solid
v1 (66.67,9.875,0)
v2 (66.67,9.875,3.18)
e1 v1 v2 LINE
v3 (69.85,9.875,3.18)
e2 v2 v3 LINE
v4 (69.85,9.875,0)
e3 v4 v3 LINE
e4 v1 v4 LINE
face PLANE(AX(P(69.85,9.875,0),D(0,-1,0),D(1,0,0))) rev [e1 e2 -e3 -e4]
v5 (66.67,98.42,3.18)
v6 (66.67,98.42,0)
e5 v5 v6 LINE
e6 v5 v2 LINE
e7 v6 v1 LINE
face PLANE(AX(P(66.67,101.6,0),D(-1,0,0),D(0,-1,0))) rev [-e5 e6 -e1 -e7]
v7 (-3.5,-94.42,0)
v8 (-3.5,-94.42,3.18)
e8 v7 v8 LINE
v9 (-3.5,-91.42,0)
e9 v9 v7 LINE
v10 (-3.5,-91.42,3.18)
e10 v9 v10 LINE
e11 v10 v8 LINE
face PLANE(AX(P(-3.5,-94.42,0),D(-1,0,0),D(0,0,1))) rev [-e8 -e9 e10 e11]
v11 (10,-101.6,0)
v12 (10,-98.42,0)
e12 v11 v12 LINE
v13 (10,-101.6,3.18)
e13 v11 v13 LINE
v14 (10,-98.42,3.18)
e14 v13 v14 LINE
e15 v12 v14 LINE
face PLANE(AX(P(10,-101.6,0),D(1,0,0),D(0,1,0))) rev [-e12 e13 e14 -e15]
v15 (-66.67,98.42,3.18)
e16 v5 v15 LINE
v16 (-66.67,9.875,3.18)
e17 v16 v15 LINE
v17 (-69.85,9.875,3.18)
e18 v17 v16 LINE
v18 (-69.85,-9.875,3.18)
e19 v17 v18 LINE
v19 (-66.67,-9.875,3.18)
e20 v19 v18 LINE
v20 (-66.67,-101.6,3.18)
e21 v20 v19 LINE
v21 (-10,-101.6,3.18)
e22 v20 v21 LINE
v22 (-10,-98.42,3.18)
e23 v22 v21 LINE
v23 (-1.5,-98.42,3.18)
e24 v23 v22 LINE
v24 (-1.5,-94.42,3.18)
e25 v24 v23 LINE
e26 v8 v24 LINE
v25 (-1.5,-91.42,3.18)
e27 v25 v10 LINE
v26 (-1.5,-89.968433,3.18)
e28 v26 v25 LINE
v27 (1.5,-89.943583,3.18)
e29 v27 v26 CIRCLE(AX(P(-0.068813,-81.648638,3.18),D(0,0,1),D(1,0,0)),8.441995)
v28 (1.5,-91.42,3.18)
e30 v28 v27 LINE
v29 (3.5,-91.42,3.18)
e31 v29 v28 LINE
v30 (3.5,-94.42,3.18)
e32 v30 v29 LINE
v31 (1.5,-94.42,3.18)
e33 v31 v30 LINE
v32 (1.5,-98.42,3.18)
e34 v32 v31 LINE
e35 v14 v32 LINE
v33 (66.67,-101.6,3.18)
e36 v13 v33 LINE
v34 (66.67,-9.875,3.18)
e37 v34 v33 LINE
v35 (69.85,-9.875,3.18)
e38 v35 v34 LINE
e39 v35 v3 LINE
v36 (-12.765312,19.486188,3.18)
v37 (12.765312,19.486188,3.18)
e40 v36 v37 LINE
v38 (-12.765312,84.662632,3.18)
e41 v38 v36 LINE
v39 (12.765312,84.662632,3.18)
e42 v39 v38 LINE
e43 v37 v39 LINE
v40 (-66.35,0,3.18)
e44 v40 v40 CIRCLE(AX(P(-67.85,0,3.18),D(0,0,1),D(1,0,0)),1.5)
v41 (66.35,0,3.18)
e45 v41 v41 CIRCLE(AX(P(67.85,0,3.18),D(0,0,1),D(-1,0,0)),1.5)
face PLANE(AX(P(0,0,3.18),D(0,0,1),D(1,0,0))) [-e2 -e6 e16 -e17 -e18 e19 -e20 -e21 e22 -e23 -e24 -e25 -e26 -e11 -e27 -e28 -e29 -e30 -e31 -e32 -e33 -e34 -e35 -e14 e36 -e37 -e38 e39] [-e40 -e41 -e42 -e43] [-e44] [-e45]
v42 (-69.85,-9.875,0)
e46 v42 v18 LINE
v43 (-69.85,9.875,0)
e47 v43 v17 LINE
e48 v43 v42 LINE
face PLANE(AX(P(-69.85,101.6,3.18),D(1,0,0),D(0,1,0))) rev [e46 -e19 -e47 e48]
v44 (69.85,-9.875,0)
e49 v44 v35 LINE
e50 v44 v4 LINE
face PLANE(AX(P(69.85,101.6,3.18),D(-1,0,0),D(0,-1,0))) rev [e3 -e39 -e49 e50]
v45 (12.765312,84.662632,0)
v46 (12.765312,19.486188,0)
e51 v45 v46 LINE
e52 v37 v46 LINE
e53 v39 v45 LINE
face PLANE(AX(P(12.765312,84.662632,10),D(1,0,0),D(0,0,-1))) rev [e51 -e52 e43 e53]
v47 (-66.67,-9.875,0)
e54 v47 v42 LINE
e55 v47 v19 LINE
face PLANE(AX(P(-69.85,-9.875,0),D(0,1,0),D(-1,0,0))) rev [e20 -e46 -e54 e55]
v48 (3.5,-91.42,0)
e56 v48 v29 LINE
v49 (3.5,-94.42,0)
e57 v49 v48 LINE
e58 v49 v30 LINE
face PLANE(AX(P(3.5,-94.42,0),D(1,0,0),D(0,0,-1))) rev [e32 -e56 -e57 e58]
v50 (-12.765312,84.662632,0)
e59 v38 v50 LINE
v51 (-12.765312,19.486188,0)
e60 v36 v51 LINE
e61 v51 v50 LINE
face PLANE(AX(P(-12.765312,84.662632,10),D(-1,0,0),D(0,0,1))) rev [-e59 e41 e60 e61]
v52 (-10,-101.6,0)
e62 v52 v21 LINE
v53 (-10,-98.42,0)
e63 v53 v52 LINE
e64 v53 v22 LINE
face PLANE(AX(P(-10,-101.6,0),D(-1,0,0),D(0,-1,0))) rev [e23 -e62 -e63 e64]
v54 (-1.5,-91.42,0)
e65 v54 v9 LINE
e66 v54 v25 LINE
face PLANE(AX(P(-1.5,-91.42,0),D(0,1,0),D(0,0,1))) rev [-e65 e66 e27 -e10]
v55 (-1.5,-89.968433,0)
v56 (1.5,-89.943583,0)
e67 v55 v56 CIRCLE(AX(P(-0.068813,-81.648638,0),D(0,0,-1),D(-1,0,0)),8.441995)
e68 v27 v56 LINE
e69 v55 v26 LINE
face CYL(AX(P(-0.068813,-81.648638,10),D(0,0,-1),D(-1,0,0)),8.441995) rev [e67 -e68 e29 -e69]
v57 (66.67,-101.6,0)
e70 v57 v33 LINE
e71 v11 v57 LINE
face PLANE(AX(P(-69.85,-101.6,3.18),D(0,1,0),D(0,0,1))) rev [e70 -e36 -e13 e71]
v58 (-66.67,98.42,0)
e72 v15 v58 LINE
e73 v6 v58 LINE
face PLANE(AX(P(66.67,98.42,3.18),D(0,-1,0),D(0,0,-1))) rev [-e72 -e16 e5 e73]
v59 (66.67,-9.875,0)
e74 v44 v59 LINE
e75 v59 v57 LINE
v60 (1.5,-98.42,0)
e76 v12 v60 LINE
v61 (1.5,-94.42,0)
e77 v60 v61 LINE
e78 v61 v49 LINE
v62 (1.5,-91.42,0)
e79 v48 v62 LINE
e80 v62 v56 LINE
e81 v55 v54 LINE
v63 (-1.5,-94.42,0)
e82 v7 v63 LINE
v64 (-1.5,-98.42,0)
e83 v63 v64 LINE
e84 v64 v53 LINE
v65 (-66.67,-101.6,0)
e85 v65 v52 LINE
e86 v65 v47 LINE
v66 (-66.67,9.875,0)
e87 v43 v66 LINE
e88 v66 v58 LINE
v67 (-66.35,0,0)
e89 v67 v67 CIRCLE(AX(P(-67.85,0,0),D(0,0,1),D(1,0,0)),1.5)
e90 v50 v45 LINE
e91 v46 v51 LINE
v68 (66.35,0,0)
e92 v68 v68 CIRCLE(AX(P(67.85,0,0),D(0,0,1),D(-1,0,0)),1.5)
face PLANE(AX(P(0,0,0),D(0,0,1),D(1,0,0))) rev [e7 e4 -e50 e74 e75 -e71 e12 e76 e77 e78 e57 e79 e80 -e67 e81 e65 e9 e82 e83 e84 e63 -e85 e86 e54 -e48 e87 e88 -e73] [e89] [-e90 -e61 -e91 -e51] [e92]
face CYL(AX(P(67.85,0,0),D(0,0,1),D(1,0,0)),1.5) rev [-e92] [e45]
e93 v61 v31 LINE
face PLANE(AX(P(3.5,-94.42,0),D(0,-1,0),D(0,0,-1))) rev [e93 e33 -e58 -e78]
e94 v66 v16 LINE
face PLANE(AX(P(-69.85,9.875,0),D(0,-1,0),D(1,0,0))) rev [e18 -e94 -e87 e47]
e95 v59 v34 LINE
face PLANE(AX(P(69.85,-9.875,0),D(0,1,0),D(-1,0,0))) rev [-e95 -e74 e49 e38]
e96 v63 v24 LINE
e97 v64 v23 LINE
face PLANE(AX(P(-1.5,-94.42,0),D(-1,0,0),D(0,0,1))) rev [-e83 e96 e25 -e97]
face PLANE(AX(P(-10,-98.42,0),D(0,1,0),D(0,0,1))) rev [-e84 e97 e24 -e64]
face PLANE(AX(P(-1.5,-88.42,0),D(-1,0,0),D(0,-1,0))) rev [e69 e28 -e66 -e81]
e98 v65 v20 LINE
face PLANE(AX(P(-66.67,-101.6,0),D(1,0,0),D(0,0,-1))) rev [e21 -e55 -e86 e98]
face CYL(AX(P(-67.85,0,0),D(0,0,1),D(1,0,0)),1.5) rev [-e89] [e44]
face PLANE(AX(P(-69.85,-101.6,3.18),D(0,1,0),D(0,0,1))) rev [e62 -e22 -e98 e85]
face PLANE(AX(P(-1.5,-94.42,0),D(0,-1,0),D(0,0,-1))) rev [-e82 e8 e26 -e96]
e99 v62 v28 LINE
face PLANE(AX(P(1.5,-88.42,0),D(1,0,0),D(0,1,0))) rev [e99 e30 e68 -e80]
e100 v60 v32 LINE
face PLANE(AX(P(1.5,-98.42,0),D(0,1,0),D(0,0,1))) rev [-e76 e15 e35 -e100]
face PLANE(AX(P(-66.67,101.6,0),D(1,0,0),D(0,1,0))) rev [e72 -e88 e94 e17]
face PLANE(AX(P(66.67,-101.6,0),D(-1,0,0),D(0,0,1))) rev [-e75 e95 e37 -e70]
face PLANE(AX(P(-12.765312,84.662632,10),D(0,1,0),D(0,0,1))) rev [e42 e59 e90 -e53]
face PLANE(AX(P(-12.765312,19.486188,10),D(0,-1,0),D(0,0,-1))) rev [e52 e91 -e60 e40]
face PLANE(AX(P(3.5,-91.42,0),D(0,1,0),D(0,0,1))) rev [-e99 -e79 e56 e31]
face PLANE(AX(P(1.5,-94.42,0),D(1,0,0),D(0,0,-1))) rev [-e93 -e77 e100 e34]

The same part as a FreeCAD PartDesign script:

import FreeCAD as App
import Part
import Sketcher
from FreeCAD import Vector


def add_polygon(sketch, points):
    """Adds a closed chain of lines whose ends are joined by coincident constraints."""
    first, n = sketch.GeometryCount, len(points)
    for a, b in zip(points, points[1:] + points[:1]):
        sketch.addGeometry(Part.LineSegment(App.Vector(*a, 0), App.Vector(*b, 0)), False)
    for i in range(n):
        sketch.addConstraint(Sketcher.Constraint("Coincident", first + i, 2, first + (i + 1) % n, 1))

doc = App.newDocument("Part")
body = doc.addObject("PartDesign::Body", "Body")

# Sketch on XY plane
sketch1 = body.newObject("Sketcher::SketchObject", "Sketch")
sketch1.AttachmentSupport = (doc.getObject("XY_Plane"), [""])
sketch1.MapMode = "FlatFace"
add_polygon(sketch1, [(-70, 102), (-70, -102), (70, -102), (70, 102)])  # lines 0-3
sketch1.addConstraint(Sketcher.Constraint("Vertical", 0))
sketch1.addConstraint(Sketcher.Constraint("Horizontal", 1))
sketch1.addConstraint(Sketcher.Constraint("Vertical", 2))
sketch1.addConstraint(Sketcher.Constraint("Horizontal", 3))
sketch1.addConstraint(Sketcher.Constraint("Symmetric", 0, 2, 2, 2, -1, 1))
sketch1.addConstraint(Sketcher.Constraint("DistanceX", 1, 1, 1, 2, 139.7))
sketch1.addConstraint(Sketcher.Constraint("DistanceY", 0, 2, 0, 1, 203.2))
pad1 = body.newObject("PartDesign::Pad", "Pad")
pad1.Profile = sketch1
pad1.Length = 3.18

# Sketch on XY plane
sketch2 = body.newObject("Sketcher::SketchObject", "Sketch001")
sketch2.AttachmentSupport = (doc.getObject("XY_Plane"), [""])
sketch2.MapMode = "FlatFace"
sketch2.AttachmentOffset = App.Placement(Vector(0, 0, 3.18), App.Rotation())
sketch2.addGeometry(Part.Circle(Vector(-67.8, 0, 0), Vector(0, 0, 1), 1.5), False)  # 0
sketch2.addGeometry(Part.Circle(Vector(67.8, 0, 0), Vector(0, 0, 1), 1.5), False)  # 1
add_polygon(sketch2, [(10, 101.6), (-10, 101.6), (-10, 98.4), (-1.5, 98.4), (-1.5, 94.4), (-3.5, 94.4), (-3.5, 91.4), (-1.5, 91.4), (-1.5, 88.4), (1.5, 88.4), (1.5, 91.4), (3.5, 91.4), (3.5, 94.4), (1.5, 94.4), (1.5, 98.4), (10, 98.4)])  # lines 2-17
add_polygon(sketch2, [(-10, -98.4), (-10, -101.6), (10, -101.6), (10, -98.4), (1.5, -98.4), (1.5, -94.4), (3.5, -94.4), (3.5, -91.4), (1.5, -91.4), (1.5, -88.4), (-1.5, -88.4), (-1.5, -91.4), (-3.5, -91.4), (-3.5, -94.4), (-1.5, -94.4), (-1.5, -98.4)])  # lines 18-33
add_polygon(sketch2, [(-69.8, 101.6), (-69.8, 9.9), (-66.7, 9.9), (-66.7, 101.6)])  # lines 34-37
add_polygon(sketch2, [(-69.8, -9.9), (-69.8, -101.6), (-66.7, -101.6), (-66.7, -9.9)])  # lines 38-41
add_polygon(sketch2, [(66.7, -9.9), (66.7, -101.6), (69.8, -101.6), (69.8, -9.9)])  # lines 42-45
add_polygon(sketch2, [(66.7, 101.6), (66.7, 9.9), (69.8, 9.9), (69.8, 101.6)])  # lines 46-49
sketch2.addConstraint(Sketcher.Constraint("Horizontal", 2))
sketch2.addConstraint(Sketcher.Constraint("Vertical", 3))
sketch2.addConstraint(Sketcher.Constraint("Horizontal", 4))
sketch2.addConstraint(Sketcher.Constraint("Vertical", 5))
sketch2.addConstraint(Sketcher.Constraint("Horizontal", 6))
sketch2.addConstraint(Sketcher.Constraint("Vertical", 7))
sketch2.addConstraint(Sketcher.Constraint("Horizontal", 8))
sketch2.addConstraint(Sketcher.Constraint("Vertical", 9))
sketch2.addConstraint(Sketcher.Constraint("Horizontal", 10))
sketch2.addConstraint(Sketcher.Constraint("Vertical", 11))
sketch2.addConstraint(Sketcher.Constraint("Horizontal", 12))
sketch2.addConstraint(Sketcher.Constraint("Vertical", 13))
sketch2.addConstraint(Sketcher.Constraint("Horizontal", 14))
sketch2.addConstraint(Sketcher.Constraint("Vertical", 15))
sketch2.addConstraint(Sketcher.Constraint("Horizontal", 16))
sketch2.addConstraint(Sketcher.Constraint("Vertical", 17))
sketch2.addConstraint(Sketcher.Constraint("Vertical", 18))
sketch2.addConstraint(Sketcher.Constraint("Horizontal", 19))
sketch2.addConstraint(Sketcher.Constraint("Vertical", 20))
sketch2.addConstraint(Sketcher.Constraint("Horizontal", 21))
sketch2.addConstraint(Sketcher.Constraint("Vertical", 22))
sketch2.addConstraint(Sketcher.Constraint("Horizontal", 23))
sketch2.addConstraint(Sketcher.Constraint("Vertical", 24))
sketch2.addConstraint(Sketcher.Constraint("Horizontal", 25))
sketch2.addConstraint(Sketcher.Constraint("Vertical", 26))
sketch2.addConstraint(Sketcher.Constraint("Horizontal", 27))
sketch2.addConstraint(Sketcher.Constraint("Vertical", 28))
sketch2.addConstraint(Sketcher.Constraint("Horizontal", 29))
sketch2.addConstraint(Sketcher.Constraint("Vertical", 30))
sketch2.addConstraint(Sketcher.Constraint("Horizontal", 31))
sketch2.addConstraint(Sketcher.Constraint("Vertical", 32))
sketch2.addConstraint(Sketcher.Constraint("Horizontal", 33))
sketch2.addConstraint(Sketcher.Constraint("Vertical", 34))
sketch2.addConstraint(Sketcher.Constraint("Horizontal", 35))
sketch2.addConstraint(Sketcher.Constraint("Vertical", 36))
sketch2.addConstraint(Sketcher.Constraint("Horizontal", 37))
sketch2.addConstraint(Sketcher.Constraint("Vertical", 38))
sketch2.addConstraint(Sketcher.Constraint("Horizontal", 39))
sketch2.addConstraint(Sketcher.Constraint("Vertical", 40))
sketch2.addConstraint(Sketcher.Constraint("Horizontal", 41))
sketch2.addConstraint(Sketcher.Constraint("Vertical", 42))
sketch2.addConstraint(Sketcher.Constraint("Horizontal", 43))
sketch2.addConstraint(Sketcher.Constraint("Vertical", 44))
sketch2.addConstraint(Sketcher.Constraint("Horizontal", 45))
sketch2.addConstraint(Sketcher.Constraint("Vertical", 46))
sketch2.addConstraint(Sketcher.Constraint("Horizontal", 47))
sketch2.addConstraint(Sketcher.Constraint("Vertical", 48))
sketch2.addConstraint(Sketcher.Constraint("Horizontal", 49))
sketch2.addConstraint(Sketcher.Constraint("Equal", 0, 1))
sketch2.addConstraint(Sketcher.Constraint("Symmetric", 0, 3, 1, 3, -1, 1))
sketch2.addConstraint(Sketcher.Constraint("Symmetric", 17, 2, 18, 2, -1, 1))
sketch2.addConstraint(Sketcher.Constraint("Symmetric", 3, 2, 20, 2, -1, 1))
sketch2.addConstraint(Sketcher.Constraint("Symmetric", 5, 2, 22, 2, -1, 1))
sketch2.addConstraint(Sketcher.Constraint("Symmetric", 7, 2, 24, 2, -1, 1))
sketch2.addConstraint(Sketcher.Constraint("Symmetric", 9, 2, 26, 2, -1, 1))
sketch2.addConstraint(Sketcher.Constraint("Symmetric", 11, 2, 28, 2, -1, 1))
sketch2.addConstraint(Sketcher.Constraint("Symmetric", 13, 2, 30, 2, -1, 1))
sketch2.addConstraint(Sketcher.Constraint("Symmetric", 15, 2, 32, 2, -1, 1))
sketch2.addConstraint(Sketcher.Constraint("Symmetric", 36, 2, 42, 2, -1, 1))
sketch2.addConstraint(Sketcher.Constraint("Symmetric", 34, 2, 44, 2, -1, 1))
sketch2.addConstraint(Sketcher.Constraint("Symmetric", 40, 2, 46, 2, -1, 1))
sketch2.addConstraint(Sketcher.Constraint("Symmetric", 38, 2, 48, 2, -1, 1))
sketch2.addConstraint(Sketcher.Constraint("Symmetric", 8, 2, 11, 2, -2))
sketch2.addConstraint(Sketcher.Constraint("Symmetric", 6, 2, 13, 2, -2))
sketch2.addConstraint(Sketcher.Constraint("Symmetric", 4, 2, 15, 2, -2))
sketch2.addConstraint(Sketcher.Constraint("Symmetric", 39, 2, 42, 2, -2))
sketch2.addConstraint(Sketcher.Constraint("Symmetric", 41, 2, 44, 2, -2))
sketch2.addConstraint(Sketcher.Constraint("PointOnObject", 0, 3, -1))
sketch2.addConstraint(Sketcher.Constraint("Horizontal", 17, 2, 36, 2))
sketch2.addConstraint(Sketcher.Constraint("Vertical", 5, 2, 8, 2))
sketch2.addConstraint(Sketcher.Constraint("Vertical", 3, 2, 18, 2))
sketch2.addConstraint(Sketcher.Constraint("Equal", 49, 3))
sketch2.addConstraint(Sketcher.Constraint("Equal", 27, 7))
sketch2.addConstraint(Sketcher.Constraint("Equal", 7, 9))
sketch2.addConstraint(Sketcher.Constraint("Diameter", 0, 3.0))
sketch2.addConstraint(Sketcher.Constraint("DistanceX", 2, 2, 2, 1, 20.0))
sketch2.addConstraint(Sketcher.Constraint("DistanceX", 6, 2, 6, 1, 2.0))
sketch2.addConstraint(Sketcher.Constraint("DistanceX", 10, 1, 10, 2, 3.0))
sketch2.addConstraint(Sketcher.Constraint("DistanceY", 5, 2, 5, 1, 4.0))
sketch2.addConstraint(Sketcher.Constraint("DistanceX", 34, 2, 0, 3, 2.0))
sketch2.addConstraint(Sketcher.Constraint("DistanceX", 35, 1, 35, 2, 3.18))
sketch2.addConstraint(Sketcher.Constraint("DistanceY", -1, 1, 2, 2, 101.6))
sketch2.addConstraint(Sketcher.Constraint("DistanceX", 0, 3, 1, 3, 135.7))
sketch2.addConstraint(Sketcher.Constraint("DistanceY", 34, 2, 34, 1, 91.725))
pocket1 = body.newObject("PartDesign::Pocket", "Pocket")
pocket1.Profile = sketch2
pocket1.Type = "ThroughAll"

# Sketch on XY plane
sketch3 = body.newObject("Sketcher::SketchObject", "Sketch002")
sketch3.AttachmentSupport = (doc.getObject("XY_Plane"), [""])
sketch3.MapMode = "FlatFace"
sketch3.addGeometry(Part.Circle(Vector(0, -82, 0), Vector(0, 0, 1), 8), False)
sketch3.addConstraint(Sketcher.Constraint("Diameter", 0, 16.883989))
sketch3.addConstraint(Sketcher.Constraint("DistanceY", 0, 3, -1, 1, 81.648638))
sketch3.addConstraint(Sketcher.Constraint("DistanceX", 0, 3, -1, 1, 0.068813))
pocket2 = body.newObject("PartDesign::Pocket", "Pocket001")
pocket2.Profile = sketch3
pocket2.Length = 10
pocket2.Reversed = True

# Sketch on XY plane
sketch4 = body.newObject("Sketcher::SketchObject", "Sketch003")
sketch4.AttachmentSupport = (doc.getObject("XY_Plane"), [""])
sketch4.MapMode = "FlatFace"
add_polygon(sketch4, [(13, 85), (13, 19), (-13, 19), (-13, 85)])  # lines 0-3
sketch4.addConstraint(Sketcher.Constraint("Vertical", 0))
sketch4.addConstraint(Sketcher.Constraint("Horizontal", 1))
sketch4.addConstraint(Sketcher.Constraint("Vertical", 2))
sketch4.addConstraint(Sketcher.Constraint("Horizontal", 3))
sketch4.addConstraint(Sketcher.Constraint("DistanceX", 1, 2, 1, 1, 25.530624))
sketch4.addConstraint(Sketcher.Constraint("DistanceY", 0, 2, 0, 1, 65.176444))
sketch4.addConstraint(Sketcher.Constraint("DistanceX", -1, 1, 0, 2, 12.765312))
sketch4.addConstraint(Sketcher.Constraint("DistanceY", -1, 1, 2, 2, 84.662632))
pocket3 = body.newObject("PartDesign::Pocket", "Pocket002")
pocket3.Profile = sketch4
pocket3.Length = 10
pocket3.Reversed = True

# Sketch on XY plane
sketch5 = body.newObject("Sketcher::SketchObject", "Sketch004")
sketch5.AttachmentSupport = (doc.getObject("XY_Plane"), [""])
sketch5.MapMode = "FlatFace"
add_polygon(sketch5, [(10, 102), (10, 87), (-11, 87), (-11, 102)])  # lines 0-3
sketch5.addConstraint(Sketcher.Constraint("Vertical", 0))
sketch5.addConstraint(Sketcher.Constraint("Horizontal", 1))
sketch5.addConstraint(Sketcher.Constraint("Vertical", 2))
sketch5.addConstraint(Sketcher.Constraint("Horizontal", 3))
sketch5.addConstraint(Sketcher.Constraint("DistanceX", -1, 1, 0, 2, 10.0))
sketch5.addConstraint(Sketcher.Constraint("DistanceY", -1, 1, 2, 2, 101.6))
sketch5.addConstraint(Sketcher.Constraint("DistanceY", 0, 2, 0, 1, 14.404592))
sketch5.addConstraint(Sketcher.Constraint("DistanceX", 1, 2, 1, 1, 20.542742))
pad2 = body.newObject("PartDesign::Pad", "Pad001")
pad2.Profile = sketch5
pad2.Length = 3.18

# Sketch on XY plane
sketch6 = body.newObject("Sketcher::SketchObject", "Sketch005")
sketch6.AttachmentSupport = (doc.getObject("XY_Plane"), [""])
sketch6.MapMode = "FlatFace"
add_polygon(sketch6, [(66.7, 101.6), (66.7, 98.4), (10, 98.4), (10, 101.6)])  # lines 0-3
add_polygon(sketch6, [(-9.7, 101.6), (-9.7, 98.4), (-66.7, 98.4), (-66.7, 101.6)])  # lines 4-7
sketch6.addConstraint(Sketcher.Constraint("Vertical", 0))
sketch6.addConstraint(Sketcher.Constraint("Horizontal", 1))
sketch6.addConstraint(Sketcher.Constraint("Vertical", 2))
sketch6.addConstraint(Sketcher.Constraint("Horizontal", 3))
sketch6.addConstraint(Sketcher.Constraint("Vertical", 4))
sketch6.addConstraint(Sketcher.Constraint("Horizontal", 5))
sketch6.addConstraint(Sketcher.Constraint("Vertical", 6))
sketch6.addConstraint(Sketcher.Constraint("Horizontal", 7))
sketch6.addConstraint(Sketcher.Constraint("Symmetric", 0, 2, 5, 2, -2))
sketch6.addConstraint(Sketcher.Constraint("Horizontal", 3, 2, 6, 2))
sketch6.addConstraint(Sketcher.Constraint("DistanceY", 0, 2, 0, 1, 3.18))
sketch6.addConstraint(Sketcher.Constraint("DistanceY", -1, 1, 2, 2, 101.6))
sketch6.addConstraint(Sketcher.Constraint("DistanceX", -1, 1, 0, 2, 66.67))
sketch6.addConstraint(Sketcher.Constraint("DistanceX", 4, 2, 1, 2, 19.75))
sketch6.addConstraint(Sketcher.Constraint("DistanceX", 1, 2, 1, 1, 56.634006))
pocket4 = body.newObject("PartDesign::Pocket", "Pocket003")
pocket4.Profile = sketch6
pocket4.Length = 3.18
pocket4.Reversed = True

# Sketch on YZ plane
sketch7 = body.newObject("Sketcher::SketchObject", "Sketch006")
sketch7.AttachmentSupport = (doc.getObject("YZ_Plane"), [""])
sketch7.MapMode = "FlatFace"
sketch7.AttachmentOffset = App.Placement(Vector(0, 0, -9.714006), App.Rotation())
add_polygon(sketch7, [(101.6, 0), (98.4, 0), (98.4, 3.2), (101.6, 3.2)])  # lines 0-3
sketch7.addConstraint(Sketcher.Constraint("Horizontal", 0))
sketch7.addConstraint(Sketcher.Constraint("Vertical", 1))
sketch7.addConstraint(Sketcher.Constraint("Horizontal", 2))
sketch7.addConstraint(Sketcher.Constraint("Vertical", 3))
sketch7.addConstraint(Sketcher.Constraint("PointOnObject", 0, 2, -1))
sketch7.addConstraint(Sketcher.Constraint("Equal", 2, 1))
sketch7.addConstraint(Sketcher.Constraint("DistanceX", 0, 2, 0, 1, 3.18))
sketch7.addConstraint(Sketcher.Constraint("DistanceX", -1, 1, 2, 2, 101.6))
pocket5 = body.newObject("PartDesign::Pocket", "Pocket004")
pocket5.Profile = sketch7
pocket5.Type = "ThroughAll"
pocket5.Reversed = True

doc.recompute()
